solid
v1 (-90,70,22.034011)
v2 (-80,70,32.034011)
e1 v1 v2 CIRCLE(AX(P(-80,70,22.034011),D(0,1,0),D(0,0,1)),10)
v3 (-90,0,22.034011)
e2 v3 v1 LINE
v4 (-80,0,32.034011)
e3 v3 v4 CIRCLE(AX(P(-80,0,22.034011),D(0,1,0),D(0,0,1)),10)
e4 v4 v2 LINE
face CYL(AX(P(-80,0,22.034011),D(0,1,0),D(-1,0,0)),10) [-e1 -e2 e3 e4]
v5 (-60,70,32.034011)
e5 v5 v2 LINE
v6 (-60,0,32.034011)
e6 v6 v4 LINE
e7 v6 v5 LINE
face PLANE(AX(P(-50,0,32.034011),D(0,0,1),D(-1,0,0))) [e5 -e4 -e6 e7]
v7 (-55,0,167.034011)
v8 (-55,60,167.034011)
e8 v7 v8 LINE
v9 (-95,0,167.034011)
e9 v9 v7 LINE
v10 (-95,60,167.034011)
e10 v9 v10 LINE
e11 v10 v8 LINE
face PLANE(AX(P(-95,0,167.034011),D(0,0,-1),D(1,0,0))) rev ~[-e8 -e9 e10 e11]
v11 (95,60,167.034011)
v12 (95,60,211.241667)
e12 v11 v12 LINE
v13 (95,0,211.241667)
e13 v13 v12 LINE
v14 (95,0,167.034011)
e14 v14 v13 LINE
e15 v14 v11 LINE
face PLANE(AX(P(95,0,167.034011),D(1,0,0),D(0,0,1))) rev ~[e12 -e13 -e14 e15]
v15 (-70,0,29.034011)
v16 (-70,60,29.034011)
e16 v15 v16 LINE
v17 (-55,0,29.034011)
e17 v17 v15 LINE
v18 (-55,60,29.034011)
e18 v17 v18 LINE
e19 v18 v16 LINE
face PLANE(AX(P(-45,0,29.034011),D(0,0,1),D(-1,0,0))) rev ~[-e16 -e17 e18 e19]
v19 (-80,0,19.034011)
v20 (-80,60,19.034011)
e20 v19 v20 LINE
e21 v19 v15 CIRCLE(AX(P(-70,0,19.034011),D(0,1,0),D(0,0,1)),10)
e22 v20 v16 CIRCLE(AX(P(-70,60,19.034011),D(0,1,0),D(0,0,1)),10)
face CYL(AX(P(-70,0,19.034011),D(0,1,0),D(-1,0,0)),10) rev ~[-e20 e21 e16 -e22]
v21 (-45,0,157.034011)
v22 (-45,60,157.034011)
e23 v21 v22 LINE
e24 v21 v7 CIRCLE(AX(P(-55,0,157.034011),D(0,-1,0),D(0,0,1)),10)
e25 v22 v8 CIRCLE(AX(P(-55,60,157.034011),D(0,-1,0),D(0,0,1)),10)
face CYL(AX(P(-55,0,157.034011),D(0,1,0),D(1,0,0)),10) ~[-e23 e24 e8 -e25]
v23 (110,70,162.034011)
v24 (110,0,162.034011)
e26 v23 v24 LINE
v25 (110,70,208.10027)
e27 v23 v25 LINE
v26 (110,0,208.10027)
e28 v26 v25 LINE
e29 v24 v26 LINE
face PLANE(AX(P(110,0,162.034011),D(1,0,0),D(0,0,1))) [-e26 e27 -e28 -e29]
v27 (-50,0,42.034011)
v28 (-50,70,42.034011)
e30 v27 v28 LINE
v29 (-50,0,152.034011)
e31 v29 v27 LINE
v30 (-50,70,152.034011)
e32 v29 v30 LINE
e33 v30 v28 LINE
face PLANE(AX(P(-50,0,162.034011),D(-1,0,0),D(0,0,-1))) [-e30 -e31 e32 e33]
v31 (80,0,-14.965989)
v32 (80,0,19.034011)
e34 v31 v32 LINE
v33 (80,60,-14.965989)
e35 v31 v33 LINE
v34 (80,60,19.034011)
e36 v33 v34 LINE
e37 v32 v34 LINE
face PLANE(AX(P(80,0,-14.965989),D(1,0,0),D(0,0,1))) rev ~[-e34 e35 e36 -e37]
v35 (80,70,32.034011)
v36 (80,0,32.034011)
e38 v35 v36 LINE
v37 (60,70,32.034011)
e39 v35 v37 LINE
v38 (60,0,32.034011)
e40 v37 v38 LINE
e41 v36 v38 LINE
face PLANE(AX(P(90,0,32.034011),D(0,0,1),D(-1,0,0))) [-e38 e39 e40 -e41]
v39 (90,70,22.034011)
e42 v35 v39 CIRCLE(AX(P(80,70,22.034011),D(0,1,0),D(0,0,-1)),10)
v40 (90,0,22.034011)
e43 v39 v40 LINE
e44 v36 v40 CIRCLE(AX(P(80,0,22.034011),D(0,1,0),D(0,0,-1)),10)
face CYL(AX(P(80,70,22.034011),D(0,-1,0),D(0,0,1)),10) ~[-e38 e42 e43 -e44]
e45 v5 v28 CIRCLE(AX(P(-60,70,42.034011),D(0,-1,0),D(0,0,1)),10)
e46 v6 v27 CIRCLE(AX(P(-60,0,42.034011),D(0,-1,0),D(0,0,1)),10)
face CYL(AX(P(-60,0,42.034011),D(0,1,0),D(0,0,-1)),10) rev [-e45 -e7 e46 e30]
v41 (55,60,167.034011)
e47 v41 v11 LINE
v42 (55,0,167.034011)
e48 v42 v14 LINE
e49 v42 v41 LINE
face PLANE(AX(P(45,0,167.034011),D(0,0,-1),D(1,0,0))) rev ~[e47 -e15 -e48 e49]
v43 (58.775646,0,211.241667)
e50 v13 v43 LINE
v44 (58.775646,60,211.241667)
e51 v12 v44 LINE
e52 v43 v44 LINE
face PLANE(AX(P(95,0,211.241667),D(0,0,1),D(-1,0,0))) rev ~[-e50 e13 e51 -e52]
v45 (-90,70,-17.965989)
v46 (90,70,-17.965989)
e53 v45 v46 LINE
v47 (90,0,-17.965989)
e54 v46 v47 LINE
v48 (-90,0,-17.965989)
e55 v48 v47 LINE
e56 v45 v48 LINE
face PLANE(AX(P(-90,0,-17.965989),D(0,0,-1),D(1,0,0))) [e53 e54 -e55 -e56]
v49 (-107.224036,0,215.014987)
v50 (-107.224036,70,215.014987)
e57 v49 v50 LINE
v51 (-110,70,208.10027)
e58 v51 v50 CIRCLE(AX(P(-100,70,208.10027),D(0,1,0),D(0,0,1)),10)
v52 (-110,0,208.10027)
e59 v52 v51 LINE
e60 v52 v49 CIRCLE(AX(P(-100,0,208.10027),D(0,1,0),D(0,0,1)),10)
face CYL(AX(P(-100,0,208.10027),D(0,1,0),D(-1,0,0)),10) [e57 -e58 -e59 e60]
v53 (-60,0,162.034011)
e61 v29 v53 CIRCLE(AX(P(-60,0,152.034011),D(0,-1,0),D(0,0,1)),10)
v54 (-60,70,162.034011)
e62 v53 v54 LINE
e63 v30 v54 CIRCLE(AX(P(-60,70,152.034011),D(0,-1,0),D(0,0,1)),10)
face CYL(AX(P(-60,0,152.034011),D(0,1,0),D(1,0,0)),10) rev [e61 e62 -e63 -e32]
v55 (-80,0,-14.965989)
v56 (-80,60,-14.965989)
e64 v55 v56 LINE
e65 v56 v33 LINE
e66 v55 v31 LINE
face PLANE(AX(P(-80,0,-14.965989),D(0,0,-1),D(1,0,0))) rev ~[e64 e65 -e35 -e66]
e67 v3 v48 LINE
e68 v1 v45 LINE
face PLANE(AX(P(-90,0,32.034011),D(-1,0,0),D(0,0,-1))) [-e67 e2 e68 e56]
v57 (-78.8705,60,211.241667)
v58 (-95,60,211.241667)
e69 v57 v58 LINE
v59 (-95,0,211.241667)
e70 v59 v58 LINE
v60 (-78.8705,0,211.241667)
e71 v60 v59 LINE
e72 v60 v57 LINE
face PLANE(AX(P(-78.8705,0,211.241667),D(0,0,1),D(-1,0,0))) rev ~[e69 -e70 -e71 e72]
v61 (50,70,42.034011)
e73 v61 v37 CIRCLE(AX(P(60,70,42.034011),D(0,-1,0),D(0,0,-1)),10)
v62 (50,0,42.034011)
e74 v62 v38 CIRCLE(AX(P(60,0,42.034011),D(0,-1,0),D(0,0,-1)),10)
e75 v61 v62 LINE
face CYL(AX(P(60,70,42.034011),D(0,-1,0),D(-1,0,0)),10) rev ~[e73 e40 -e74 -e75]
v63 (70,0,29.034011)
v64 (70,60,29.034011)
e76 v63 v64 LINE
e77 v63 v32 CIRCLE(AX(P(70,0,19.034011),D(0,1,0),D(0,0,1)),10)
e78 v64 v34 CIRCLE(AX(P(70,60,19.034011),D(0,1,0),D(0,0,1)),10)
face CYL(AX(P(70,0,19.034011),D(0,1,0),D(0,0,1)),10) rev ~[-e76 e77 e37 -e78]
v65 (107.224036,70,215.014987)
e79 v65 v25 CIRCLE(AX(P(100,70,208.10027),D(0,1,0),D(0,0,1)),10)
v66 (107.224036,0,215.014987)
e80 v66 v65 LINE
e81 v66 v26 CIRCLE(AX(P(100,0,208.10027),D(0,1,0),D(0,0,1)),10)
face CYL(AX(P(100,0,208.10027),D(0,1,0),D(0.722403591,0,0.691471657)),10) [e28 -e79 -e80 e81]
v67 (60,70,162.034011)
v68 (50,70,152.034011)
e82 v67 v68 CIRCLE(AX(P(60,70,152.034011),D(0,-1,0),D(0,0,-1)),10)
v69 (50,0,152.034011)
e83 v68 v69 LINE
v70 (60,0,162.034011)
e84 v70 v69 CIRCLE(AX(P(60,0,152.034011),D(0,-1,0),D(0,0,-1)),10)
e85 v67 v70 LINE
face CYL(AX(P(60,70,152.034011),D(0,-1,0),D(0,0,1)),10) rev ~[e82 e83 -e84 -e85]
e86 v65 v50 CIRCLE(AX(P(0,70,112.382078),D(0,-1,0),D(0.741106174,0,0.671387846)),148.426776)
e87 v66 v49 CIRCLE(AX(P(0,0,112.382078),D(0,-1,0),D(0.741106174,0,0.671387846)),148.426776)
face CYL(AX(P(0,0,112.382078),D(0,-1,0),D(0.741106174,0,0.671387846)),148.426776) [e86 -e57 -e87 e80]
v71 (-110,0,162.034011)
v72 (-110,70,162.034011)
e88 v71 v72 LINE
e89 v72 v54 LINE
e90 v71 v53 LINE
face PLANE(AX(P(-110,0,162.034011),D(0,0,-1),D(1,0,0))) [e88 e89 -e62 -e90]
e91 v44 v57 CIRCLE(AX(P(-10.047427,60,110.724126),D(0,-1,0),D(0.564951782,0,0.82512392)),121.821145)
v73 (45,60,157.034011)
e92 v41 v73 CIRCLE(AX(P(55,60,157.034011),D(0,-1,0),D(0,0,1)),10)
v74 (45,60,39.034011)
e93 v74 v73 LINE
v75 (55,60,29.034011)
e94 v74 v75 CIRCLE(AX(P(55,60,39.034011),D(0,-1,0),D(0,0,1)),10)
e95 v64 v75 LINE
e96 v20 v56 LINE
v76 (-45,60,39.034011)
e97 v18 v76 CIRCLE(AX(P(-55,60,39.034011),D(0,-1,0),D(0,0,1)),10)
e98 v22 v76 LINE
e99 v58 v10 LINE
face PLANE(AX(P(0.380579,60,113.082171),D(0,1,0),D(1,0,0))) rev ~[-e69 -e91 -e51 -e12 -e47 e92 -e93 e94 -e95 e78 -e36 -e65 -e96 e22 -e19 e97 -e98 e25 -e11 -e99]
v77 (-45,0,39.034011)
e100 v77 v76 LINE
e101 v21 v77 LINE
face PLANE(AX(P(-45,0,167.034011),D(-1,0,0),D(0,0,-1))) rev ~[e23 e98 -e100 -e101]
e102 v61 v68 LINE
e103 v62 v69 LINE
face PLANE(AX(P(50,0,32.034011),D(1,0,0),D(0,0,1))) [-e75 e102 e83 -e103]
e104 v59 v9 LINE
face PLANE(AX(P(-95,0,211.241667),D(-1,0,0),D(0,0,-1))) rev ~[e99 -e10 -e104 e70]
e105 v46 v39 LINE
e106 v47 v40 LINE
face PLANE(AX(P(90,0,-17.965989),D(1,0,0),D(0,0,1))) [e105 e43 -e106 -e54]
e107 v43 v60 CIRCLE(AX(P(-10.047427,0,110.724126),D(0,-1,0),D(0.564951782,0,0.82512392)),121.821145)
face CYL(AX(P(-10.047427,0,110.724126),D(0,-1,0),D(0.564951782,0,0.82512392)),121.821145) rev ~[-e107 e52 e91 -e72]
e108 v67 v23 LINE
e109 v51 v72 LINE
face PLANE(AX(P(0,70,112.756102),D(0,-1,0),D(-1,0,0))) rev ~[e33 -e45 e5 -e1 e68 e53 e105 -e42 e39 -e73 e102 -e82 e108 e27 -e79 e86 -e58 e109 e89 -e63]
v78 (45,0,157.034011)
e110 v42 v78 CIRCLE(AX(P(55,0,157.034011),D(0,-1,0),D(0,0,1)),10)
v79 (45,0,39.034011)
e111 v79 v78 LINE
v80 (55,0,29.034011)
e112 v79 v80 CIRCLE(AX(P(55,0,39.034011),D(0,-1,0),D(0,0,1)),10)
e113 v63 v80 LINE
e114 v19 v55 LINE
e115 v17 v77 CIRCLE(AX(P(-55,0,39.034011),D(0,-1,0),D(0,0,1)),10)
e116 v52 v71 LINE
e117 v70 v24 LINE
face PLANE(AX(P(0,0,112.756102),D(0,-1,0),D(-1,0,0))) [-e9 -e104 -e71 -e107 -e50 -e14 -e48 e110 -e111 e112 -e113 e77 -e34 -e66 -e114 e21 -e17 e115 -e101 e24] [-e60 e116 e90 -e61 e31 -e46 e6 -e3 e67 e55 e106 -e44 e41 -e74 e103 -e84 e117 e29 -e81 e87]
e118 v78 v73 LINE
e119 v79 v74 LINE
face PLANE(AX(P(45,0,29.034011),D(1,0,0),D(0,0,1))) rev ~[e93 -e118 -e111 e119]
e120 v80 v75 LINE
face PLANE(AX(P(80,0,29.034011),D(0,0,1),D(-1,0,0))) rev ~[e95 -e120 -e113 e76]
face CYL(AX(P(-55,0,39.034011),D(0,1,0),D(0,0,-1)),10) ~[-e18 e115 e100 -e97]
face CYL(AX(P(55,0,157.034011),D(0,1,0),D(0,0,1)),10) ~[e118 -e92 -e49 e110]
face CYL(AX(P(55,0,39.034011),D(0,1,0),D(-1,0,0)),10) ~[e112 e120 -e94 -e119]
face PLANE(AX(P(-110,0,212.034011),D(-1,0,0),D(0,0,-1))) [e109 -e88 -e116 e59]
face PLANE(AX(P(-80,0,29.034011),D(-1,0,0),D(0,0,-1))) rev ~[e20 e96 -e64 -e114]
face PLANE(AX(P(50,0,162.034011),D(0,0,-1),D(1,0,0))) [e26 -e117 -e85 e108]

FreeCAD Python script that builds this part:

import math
import FreeCAD as App
import Part
import Sketcher
Q = App.Units.Quantity


def edges_at(feature, points):
    """Names of the edges that pass closest to the given points."""
    edges = feature.Shape.Edges
    near = lambda p: min(range(len(edges)), key=lambda i: edges[i].distToShape(Part.Vertex(*p))[0])
    return sorted({f"Edge{near(p) + 1}" for p in points})

doc = App.newDocument("Part")
body = doc.addObject("PartDesign::Body", "Body")

# Sketch on XZ plane
sketch1 = doc.addObject("Sketcher::SketchObject", "Sketch")
body.addObject(sketch1)
sketch1.AttachmentSupport = (doc.XZ_Plane, [""])
sketch1.MapMode = "FlatFace"
sketch1.addGeometry(Part.LineSegment(App.Vector(90, -17.965989, 0), App.Vector(-90, -17.965989, 0)), False)
sketch1.addGeometry(Part.LineSegment(App.Vector(-90, -17.965989, 0), App.Vector(-90, 32.034011, 0)), False)
sketch1.addGeometry(Part.LineSegment(App.Vector(-90, 32.034011, 0), App.Vector(-50, 32.034011, 0)), False)
sketch1.addGeometry(Part.LineSegment(App.Vector(-50, 32.034011, 0), App.Vector(-50, 162.034011, 0)), False)
sketch1.addGeometry(Part.LineSegment(App.Vector(-50, 162.034011, 0), App.Vector(-110, 162.034011, 0)), False)
sketch1.addGeometry(Part.LineSegment(App.Vector(-110, 162.034011, 0), App.Vector(-110, 212.034011, 0)), False)
sketch1.addGeometry(Part.ArcOfCircle(Part.Circle(App.Vector(0, 112.382078, 0), App.Vector(0, 0, 1), 148.426776), math.radians(42.17427), math.radians(137.82573)), False)
sketch1.addGeometry(Part.LineSegment(App.Vector(110, 212.034011, 0), App.Vector(110, 162.034011, 0)), False)
sketch1.addGeometry(Part.LineSegment(App.Vector(110, 162.034011, 0), App.Vector(50, 162.034011, 0)), False)
sketch1.addGeometry(Part.LineSegment(App.Vector(50, 162.034011, 0), App.Vector(50, 32.034011, 0)), False)
sketch1.addGeometry(Part.LineSegment(App.Vector(50, 32.034011, 0), App.Vector(90, 32.034011, 0)), False)
sketch1.addGeometry(Part.LineSegment(App.Vector(90, 32.034011, 0), App.Vector(90, -17.965989, 0)), False)
sketch1.addGeometry(Part.LineSegment(App.Vector(-80, -14.965989, 0), App.Vector(80, -14.965989, 0)), False)
sketch1.addGeometry(Part.LineSegment(App.Vector(80, -14.965989, 0), App.Vector(80, 29.034011, 0)), False)
sketch1.addGeometry(Part.LineSegment(App.Vector(80, 29.034011, 0), App.Vector(45, 29.034011, 0)), False)
sketch1.addGeometry(Part.LineSegment(App.Vector(45, 29.034011, 0), App.Vector(45, 167.034011, 0)), False)
sketch1.addGeometry(Part.LineSegment(App.Vector(45, 167.034011, 0), App.Vector(95, 167.034011, 0)), False)
sketch1.addGeometry(Part.LineSegment(App.Vector(95, 167.034011, 0), App.Vector(95, 211.241667, 0)), False)
sketch1.addGeometry(Part.LineSegment(App.Vector(95, 211.241667, 0), App.Vector(58.775646, 211.241667, 0)), False)
sketch1.addGeometry(Part.ArcOfCircle(Part.Circle(App.Vector(-10.047427, 110.724126, 0), App.Vector(0, 0, 1), 121.821145), math.radians(55.601057), math.radians(124.398943)), False)
sketch1.addGeometry(Part.LineSegment(App.Vector(-78.8705, 211.241667, 0), App.Vector(-95, 211.241667, 0)), False)
sketch1.addGeometry(Part.LineSegment(App.Vector(-95, 211.241667, 0), App.Vector(-95, 167.034011, 0)), False)
sketch1.addGeometry(Part.LineSegment(App.Vector(-95, 167.034011, 0), App.Vector(-45, 167.034011, 0)), False)
sketch1.addGeometry(Part.LineSegment(App.Vector(-45, 167.034011, 0), App.Vector(-45, 29.034011, 0)), False)
sketch1.addGeometry(Part.LineSegment(App.Vector(-45, 29.034011, 0), App.Vector(-80, 29.034011, 0)), False)
sketch1.addGeometry(Part.LineSegment(App.Vector(-80, 29.034011, 0), App.Vector(-80, -14.965989, 0)), False)
sketch1.addConstraint(Sketcher.Constraint("Coincident", 0, 2, 1, 1))
sketch1.addConstraint(Sketcher.Constraint("Coincident", 1, 2, 2, 1))
sketch1.addConstraint(Sketcher.Constraint("Coincident", 2, 2, 3, 1))
sketch1.addConstraint(Sketcher.Constraint("Coincident", 3, 2, 4, 1))
sketch1.addConstraint(Sketcher.Constraint("Coincident", 4, 2, 5, 1))
sketch1.addConstraint(Sketcher.Constraint("Coincident", 5, 2, 6, 2))
sketch1.addConstraint(Sketcher.Constraint("Coincident", 6, 1, 7, 1))
sketch1.addConstraint(Sketcher.Constraint("Coincident", 7, 2, 8, 1))
sketch1.addConstraint(Sketcher.Constraint("Coincident", 8, 2, 9, 1))
sketch1.addConstraint(Sketcher.Constraint("Coincident", 9, 2, 10, 1))
sketch1.addConstraint(Sketcher.Constraint("Coincident", 10, 2, 11, 1))
sketch1.addConstraint(Sketcher.Constraint("Coincident", 11, 2, 0, 1))
sketch1.addConstraint(Sketcher.Constraint("Coincident", 12, 2, 13, 1))
sketch1.addConstraint(Sketcher.Constraint("Coincident", 13, 2, 14, 1))
sketch1.addConstraint(Sketcher.Constraint("Coincident", 14, 2, 15, 1))
sketch1.addConstraint(Sketcher.Constraint("Coincident", 15, 2, 16, 1))
sketch1.addConstraint(Sketcher.Constraint("Coincident", 16, 2, 17, 1))
sketch1.addConstraint(Sketcher.Constraint("Coincident", 17, 2, 18, 1))
sketch1.addConstraint(Sketcher.Constraint("Coincident", 18, 2, 19, 1))
sketch1.addConstraint(Sketcher.Constraint("Coincident", 19, 2, 20, 1))
sketch1.addConstraint(Sketcher.Constraint("Coincident", 20, 2, 21, 1))
sketch1.addConstraint(Sketcher.Constraint("Coincident", 21, 2, 22, 1))
sketch1.addConstraint(Sketcher.Constraint("Coincident", 22, 2, 23, 1))
sketch1.addConstraint(Sketcher.Constraint("Coincident", 23, 2, 24, 1))
sketch1.addConstraint(Sketcher.Constraint("Coincident", 24, 2, 25, 1))
sketch1.addConstraint(Sketcher.Constraint("Coincident", 25, 2, 12, 1))
sketch1.addConstraint(Sketcher.Constraint("Horizontal", 0))
sketch1.addConstraint(Sketcher.Constraint("Vertical", 1))
sketch1.addConstraint(Sketcher.Constraint("Horizontal", 2))
sketch1.addConstraint(Sketcher.Constraint("Vertical", 3))
sketch1.addConstraint(Sketcher.Constraint("Horizontal", 4))
sketch1.addConstraint(Sketcher.Constraint("Vertical", 5))
sketch1.addConstraint(Sketcher.Constraint("Vertical", 7))
sketch1.addConstraint(Sketcher.Constraint("Horizontal", 8))
sketch1.addConstraint(Sketcher.Constraint("Vertical", 9))
sketch1.addConstraint(Sketcher.Constraint("Horizontal", 10))
sketch1.addConstraint(Sketcher.Constraint("Vertical", 11))
sketch1.addConstraint(Sketcher.Constraint("Horizontal", 12))
sketch1.addConstraint(Sketcher.Constraint("Vertical", 13))
sketch1.addConstraint(Sketcher.Constraint("Horizontal", 14))
sketch1.addConstraint(Sketcher.Constraint("Vertical", 15))
sketch1.addConstraint(Sketcher.Constraint("Horizontal", 16))
sketch1.addConstraint(Sketcher.Constraint("Vertical", 17))
sketch1.addConstraint(Sketcher.Constraint("Horizontal", 18))
sketch1.addConstraint(Sketcher.Constraint("Horizontal", 20))
sketch1.addConstraint(Sketcher.Constraint("Vertical", 21))
sketch1.addConstraint(Sketcher.Constraint("Horizontal", 22))
sketch1.addConstraint(Sketcher.Constraint("Vertical", 23))
sketch1.addConstraint(Sketcher.Constraint("Horizontal", 24))
sketch1.addConstraint(Sketcher.Constraint("Vertical", 25))
sketch1.addConstraint(Sketcher.Constraint("Symmetric", 5, 2, 6, 1, -2))
sketch1.addConstraint(Sketcher.Constraint("Symmetric", 3, 2, 8, 2, -2))
sketch1.addConstraint(Sketcher.Constraint("Symmetric", 1, 2, 10, 2, -2))
sketch1.addConstraint(Sketcher.Constraint("Symmetric", 17, 2, 20, 2, -2))
sketch1.addConstraint(Sketcher.Constraint("Symmetric", 15, 2, 22, 2, -2))
sketch1.addConstraint(Sketcher.Constraint("Symmetric", 13, 2, 24, 2, -2))
sketch1.addConstraint(Sketcher.Constraint("Equal", 22, 1))
sketch1.addConstraint(Sketcher.Constraint("Equal", 1, 5))
sketch1.addConstraint(Sketcher.Constraint("DistanceX", 0, 2, 0, 1, Q("180 mm")))
sketch1.addConstraint(Sketcher.Constraint("DistanceX", 2, 1, 2, 2, Q("40 mm")))
sketch1.addConstraint(Sketcher.Constraint("DistanceX", 4, 2, 4, 1, Q("60 mm")))
sketch1.addConstraint(Sketcher.Constraint("DistanceX", 12, 1, 12, 2, Q("160 mm")))
sketch1.addConstraint(Sketcher.Constraint("DistanceX", 14, 2, 14, 1, Q("35 mm")))
sketch1.addConstraint(Sketcher.Constraint("DistanceX", 16, 1, 16, 2, Q("50 mm")))
sketch1.addConstraint(Sketcher.Constraint("DistanceY", 3, 1, 3, 2, Q("130 mm")))
sketch1.addConstraint(Sketcher.Constraint("DistanceY", 13, 1, 13, 2, Q("44 mm")))
sketch1.addConstraint(Sketcher.Constraint("DistanceY", 15, 1, 15, 2, Q("138 mm")))
sketch1.addConstraint(Sketcher.Constraint("DistanceY", 11, 2, 12, 2, Q("3 mm")))
sketch1.addConstraint(Sketcher.Constraint("DistanceX", 20, 2, 20, 1, Q("16.1295 mm")))
sketch1.addConstraint(Sketcher.Constraint("Radius", 6, Q("148.426776 mm")))
sketch1.addConstraint(Sketcher.Constraint("Radius", 19, Q("121.821145 mm")))
sketch1.addConstraint(Sketcher.Constraint("DistanceX", 18, 2, 18, 1, Q("36.224354 mm")))
sketch1.addConstraint(Sketcher.Constraint("DistanceY", 17, 1, 17, 2, Q("44.207655 mm")))
sketch1.addConstraint(Sketcher.Constraint("DistanceY", 0, 2, -1, 1, Q("17.965989 mm")))
pad1 = doc.addObject("PartDesign::Pad", "Pad")
body.addObject(pad1)
pad1.Profile = sketch1
pad1.Length = 70
pad1.Reversed = True
doc.recompute()

fillet = doc.addObject("PartDesign::Fillet", "Fillet")
body.addObject(fillet)
fillet.Base = (pad1, edges_at(pad1, [(-90, 35, 32.034)]))
fillet.Radius = 10

# Sketch on XZ plane
sketch2 = doc.addObject("Sketcher::SketchObject", "Sketch001")
body.addObject(sketch2)
sketch2.AttachmentSupport = (doc.XZ_Plane, [""])
sketch2.MapMode = "FlatFace"
sketch2.AttachmentOffset = App.Placement(App.Vector(0, 0, -70), App.Rotation())
sketch2.addGeometry(Part.LineSegment(App.Vector(-90, -17.965989, 0), App.Vector(-90, 22.034011, 0)), False)
sketch2.addGeometry(Part.ArcOfCircle(Part.Circle(App.Vector(-80, 22.034011, 0), App.Vector(0, 0, 1), 10), math.radians(90), math.radians(180)), False)
sketch2.addGeometry(Part.LineSegment(App.Vector(-80, 32.034011, 0), App.Vector(-50, 32.034011, 0)), False)
sketch2.addGeometry(Part.LineSegment(App.Vector(-50, 32.034011, 0), App.Vector(-50, 162.034011, 0)), False)
sketch2.addGeometry(Part.LineSegment(App.Vector(-50, 162.034011, 0), App.Vector(-110, 162.034011, 0)), False)
sketch2.addGeometry(Part.LineSegment(App.Vector(-110, 162.034011, 0), App.Vector(-110, 212.034011, 0)), False)
sketch2.addGeometry(Part.ArcOfCircle(Part.Circle(App.Vector(0, 112.382078, 0), App.Vector(0, 0, 1), 148.426776), math.radians(42.17427), math.radians(137.82573)), False)
sketch2.addGeometry(Part.LineSegment(App.Vector(110, 212.034011, 0), App.Vector(110, 162.034011, 0)), False)
sketch2.addGeometry(Part.LineSegment(App.Vector(110, 162.034011, 0), App.Vector(50, 162.034011, 0)), False)
sketch2.addGeometry(Part.LineSegment(App.Vector(50, 162.034011, 0), App.Vector(50, 32.034011, 0)), False)
sketch2.addGeometry(Part.LineSegment(App.Vector(50, 32.034011, 0), App.Vector(90, 32.034011, 0)), False)
sketch2.addGeometry(Part.LineSegment(App.Vector(90, 32.034011, 0), App.Vector(90, -17.965989, 0)), False)
sketch2.addGeometry(Part.LineSegment(App.Vector(90, -17.965989, 0), App.Vector(-90, -17.965989, 0)), False)
sketch2.addConstraint(Sketcher.Constraint("Tangent", 0, 2, 1, 2))
sketch2.addConstraint(Sketcher.Constraint("Tangent", 1, 1, 2, 1))
sketch2.addConstraint(Sketcher.Constraint("Coincident", 2, 2, 3, 1))
sketch2.addConstraint(Sketcher.Constraint("Coincident", 3, 2, 4, 1))
sketch2.addConstraint(Sketcher.Constraint("Coincident", 4, 2, 5, 1))
sketch2.addConstraint(Sketcher.Constraint("Coincident", 5, 2, 6, 2))
sketch2.addConstraint(Sketcher.Constraint("Coincident", 6, 1, 7, 1))
sketch2.addConstraint(Sketcher.Constraint("Coincident", 7, 2, 8, 1))
sketch2.addConstraint(Sketcher.Constraint("Coincident", 8, 2, 9, 1))
sketch2.addConstraint(Sketcher.Constraint("Coincident", 9, 2, 10, 1))
sketch2.addConstraint(Sketcher.Constraint("Coincident", 10, 2, 11, 1))
sketch2.addConstraint(Sketcher.Constraint("Coincident", 11, 2, 12, 1))
sketch2.addConstraint(Sketcher.Constraint("Coincident", 12, 2, 0, 1))
sketch2.addConstraint(Sketcher.Constraint("Vertical", 0))
sketch2.addConstraint(Sketcher.Constraint("Horizontal", 2))
sketch2.addConstraint(Sketcher.Constraint("Vertical", 3))
sketch2.addConstraint(Sketcher.Constraint("Horizontal", 4))
sketch2.addConstraint(Sketcher.Constraint("Vertical", 5))
sketch2.addConstraint(Sketcher.Constraint("Vertical", 7))
sketch2.addConstraint(Sketcher.Constraint("Horizontal", 8))
sketch2.addConstraint(Sketcher.Constraint("Vertical", 9))
sketch2.addConstraint(Sketcher.Constraint("Horizontal", 10))
sketch2.addConstraint(Sketcher.Constraint("Vertical", 11))
sketch2.addConstraint(Sketcher.Constraint("Horizontal", 12))
sketch2.addConstraint(Sketcher.Constraint("Symmetric", 5, 2, 6, 1, -2))
sketch2.addConstraint(Sketcher.Constraint("Symmetric", 3, 2, 8, 2, -2))
sketch2.addConstraint(Sketcher.Constraint("Horizontal", 2, 2, 9, 2))
sketch2.addConstraint(Sketcher.Constraint("Equal", 10, 0))
sketch2.addConstraint(Sketcher.Constraint("Equal", 7, 11))
sketch2.addConstraint(Sketcher.Constraint("Radius", 1, Q("10 mm")))
sketch2.addConstraint(Sketcher.Constraint("DistanceX", 2, 1, 2, 2, Q("30 mm")))
sketch2.addConstraint(Sketcher.Constraint("DistanceX", 4, 2, 4, 1, Q("60 mm")))
sketch2.addConstraint(Sketcher.Constraint("DistanceX", 10, 1, 10, 2, Q("40 mm")))
sketch2.addConstraint(Sketcher.Constraint("DistanceX", 12, 2, 12, 1, Q("180 mm")))
sketch2.addConstraint(Sketcher.Constraint("DistanceY", 3, 1, 3, 2, Q("130 mm")))
sketch2.addConstraint(Sketcher.Constraint("Radius", 6, Q("148.426776 mm")))
sketch2.addConstraint(Sketcher.Constraint("DistanceY", -1, 1, 1, 3, Q("22.034011 mm")))
pad2 = doc.addObject("PartDesign::Pad", "Pad001")
body.addObject(pad2)
pad2.Profile = sketch2
pad2.Length = 10
doc.recompute()

fillet2 = doc.addObject("PartDesign::Fillet", "Fillet001")
body.addObject(fillet2)
fillet2.Base = (pad2, edges_at(pad2, [
    (-45, 30, 167.034),
    (-45, 30, 29.034),
    (-80, 30, 29.034),
    (90, 35, 32.034),
    (50, 35, 32.034),
    (50, 35, 162.034),
    (110, 35, 212.034),
    (-110, 35, 212.034),
    (-50, 35, 162.034),
    (-50, 35, 32.034),
    (80, 30, 29.034),
    (45, 30, 29.034),
    (45, 30, 167.034),
]))
fillet2.Radius = 10

doc.recompute()
